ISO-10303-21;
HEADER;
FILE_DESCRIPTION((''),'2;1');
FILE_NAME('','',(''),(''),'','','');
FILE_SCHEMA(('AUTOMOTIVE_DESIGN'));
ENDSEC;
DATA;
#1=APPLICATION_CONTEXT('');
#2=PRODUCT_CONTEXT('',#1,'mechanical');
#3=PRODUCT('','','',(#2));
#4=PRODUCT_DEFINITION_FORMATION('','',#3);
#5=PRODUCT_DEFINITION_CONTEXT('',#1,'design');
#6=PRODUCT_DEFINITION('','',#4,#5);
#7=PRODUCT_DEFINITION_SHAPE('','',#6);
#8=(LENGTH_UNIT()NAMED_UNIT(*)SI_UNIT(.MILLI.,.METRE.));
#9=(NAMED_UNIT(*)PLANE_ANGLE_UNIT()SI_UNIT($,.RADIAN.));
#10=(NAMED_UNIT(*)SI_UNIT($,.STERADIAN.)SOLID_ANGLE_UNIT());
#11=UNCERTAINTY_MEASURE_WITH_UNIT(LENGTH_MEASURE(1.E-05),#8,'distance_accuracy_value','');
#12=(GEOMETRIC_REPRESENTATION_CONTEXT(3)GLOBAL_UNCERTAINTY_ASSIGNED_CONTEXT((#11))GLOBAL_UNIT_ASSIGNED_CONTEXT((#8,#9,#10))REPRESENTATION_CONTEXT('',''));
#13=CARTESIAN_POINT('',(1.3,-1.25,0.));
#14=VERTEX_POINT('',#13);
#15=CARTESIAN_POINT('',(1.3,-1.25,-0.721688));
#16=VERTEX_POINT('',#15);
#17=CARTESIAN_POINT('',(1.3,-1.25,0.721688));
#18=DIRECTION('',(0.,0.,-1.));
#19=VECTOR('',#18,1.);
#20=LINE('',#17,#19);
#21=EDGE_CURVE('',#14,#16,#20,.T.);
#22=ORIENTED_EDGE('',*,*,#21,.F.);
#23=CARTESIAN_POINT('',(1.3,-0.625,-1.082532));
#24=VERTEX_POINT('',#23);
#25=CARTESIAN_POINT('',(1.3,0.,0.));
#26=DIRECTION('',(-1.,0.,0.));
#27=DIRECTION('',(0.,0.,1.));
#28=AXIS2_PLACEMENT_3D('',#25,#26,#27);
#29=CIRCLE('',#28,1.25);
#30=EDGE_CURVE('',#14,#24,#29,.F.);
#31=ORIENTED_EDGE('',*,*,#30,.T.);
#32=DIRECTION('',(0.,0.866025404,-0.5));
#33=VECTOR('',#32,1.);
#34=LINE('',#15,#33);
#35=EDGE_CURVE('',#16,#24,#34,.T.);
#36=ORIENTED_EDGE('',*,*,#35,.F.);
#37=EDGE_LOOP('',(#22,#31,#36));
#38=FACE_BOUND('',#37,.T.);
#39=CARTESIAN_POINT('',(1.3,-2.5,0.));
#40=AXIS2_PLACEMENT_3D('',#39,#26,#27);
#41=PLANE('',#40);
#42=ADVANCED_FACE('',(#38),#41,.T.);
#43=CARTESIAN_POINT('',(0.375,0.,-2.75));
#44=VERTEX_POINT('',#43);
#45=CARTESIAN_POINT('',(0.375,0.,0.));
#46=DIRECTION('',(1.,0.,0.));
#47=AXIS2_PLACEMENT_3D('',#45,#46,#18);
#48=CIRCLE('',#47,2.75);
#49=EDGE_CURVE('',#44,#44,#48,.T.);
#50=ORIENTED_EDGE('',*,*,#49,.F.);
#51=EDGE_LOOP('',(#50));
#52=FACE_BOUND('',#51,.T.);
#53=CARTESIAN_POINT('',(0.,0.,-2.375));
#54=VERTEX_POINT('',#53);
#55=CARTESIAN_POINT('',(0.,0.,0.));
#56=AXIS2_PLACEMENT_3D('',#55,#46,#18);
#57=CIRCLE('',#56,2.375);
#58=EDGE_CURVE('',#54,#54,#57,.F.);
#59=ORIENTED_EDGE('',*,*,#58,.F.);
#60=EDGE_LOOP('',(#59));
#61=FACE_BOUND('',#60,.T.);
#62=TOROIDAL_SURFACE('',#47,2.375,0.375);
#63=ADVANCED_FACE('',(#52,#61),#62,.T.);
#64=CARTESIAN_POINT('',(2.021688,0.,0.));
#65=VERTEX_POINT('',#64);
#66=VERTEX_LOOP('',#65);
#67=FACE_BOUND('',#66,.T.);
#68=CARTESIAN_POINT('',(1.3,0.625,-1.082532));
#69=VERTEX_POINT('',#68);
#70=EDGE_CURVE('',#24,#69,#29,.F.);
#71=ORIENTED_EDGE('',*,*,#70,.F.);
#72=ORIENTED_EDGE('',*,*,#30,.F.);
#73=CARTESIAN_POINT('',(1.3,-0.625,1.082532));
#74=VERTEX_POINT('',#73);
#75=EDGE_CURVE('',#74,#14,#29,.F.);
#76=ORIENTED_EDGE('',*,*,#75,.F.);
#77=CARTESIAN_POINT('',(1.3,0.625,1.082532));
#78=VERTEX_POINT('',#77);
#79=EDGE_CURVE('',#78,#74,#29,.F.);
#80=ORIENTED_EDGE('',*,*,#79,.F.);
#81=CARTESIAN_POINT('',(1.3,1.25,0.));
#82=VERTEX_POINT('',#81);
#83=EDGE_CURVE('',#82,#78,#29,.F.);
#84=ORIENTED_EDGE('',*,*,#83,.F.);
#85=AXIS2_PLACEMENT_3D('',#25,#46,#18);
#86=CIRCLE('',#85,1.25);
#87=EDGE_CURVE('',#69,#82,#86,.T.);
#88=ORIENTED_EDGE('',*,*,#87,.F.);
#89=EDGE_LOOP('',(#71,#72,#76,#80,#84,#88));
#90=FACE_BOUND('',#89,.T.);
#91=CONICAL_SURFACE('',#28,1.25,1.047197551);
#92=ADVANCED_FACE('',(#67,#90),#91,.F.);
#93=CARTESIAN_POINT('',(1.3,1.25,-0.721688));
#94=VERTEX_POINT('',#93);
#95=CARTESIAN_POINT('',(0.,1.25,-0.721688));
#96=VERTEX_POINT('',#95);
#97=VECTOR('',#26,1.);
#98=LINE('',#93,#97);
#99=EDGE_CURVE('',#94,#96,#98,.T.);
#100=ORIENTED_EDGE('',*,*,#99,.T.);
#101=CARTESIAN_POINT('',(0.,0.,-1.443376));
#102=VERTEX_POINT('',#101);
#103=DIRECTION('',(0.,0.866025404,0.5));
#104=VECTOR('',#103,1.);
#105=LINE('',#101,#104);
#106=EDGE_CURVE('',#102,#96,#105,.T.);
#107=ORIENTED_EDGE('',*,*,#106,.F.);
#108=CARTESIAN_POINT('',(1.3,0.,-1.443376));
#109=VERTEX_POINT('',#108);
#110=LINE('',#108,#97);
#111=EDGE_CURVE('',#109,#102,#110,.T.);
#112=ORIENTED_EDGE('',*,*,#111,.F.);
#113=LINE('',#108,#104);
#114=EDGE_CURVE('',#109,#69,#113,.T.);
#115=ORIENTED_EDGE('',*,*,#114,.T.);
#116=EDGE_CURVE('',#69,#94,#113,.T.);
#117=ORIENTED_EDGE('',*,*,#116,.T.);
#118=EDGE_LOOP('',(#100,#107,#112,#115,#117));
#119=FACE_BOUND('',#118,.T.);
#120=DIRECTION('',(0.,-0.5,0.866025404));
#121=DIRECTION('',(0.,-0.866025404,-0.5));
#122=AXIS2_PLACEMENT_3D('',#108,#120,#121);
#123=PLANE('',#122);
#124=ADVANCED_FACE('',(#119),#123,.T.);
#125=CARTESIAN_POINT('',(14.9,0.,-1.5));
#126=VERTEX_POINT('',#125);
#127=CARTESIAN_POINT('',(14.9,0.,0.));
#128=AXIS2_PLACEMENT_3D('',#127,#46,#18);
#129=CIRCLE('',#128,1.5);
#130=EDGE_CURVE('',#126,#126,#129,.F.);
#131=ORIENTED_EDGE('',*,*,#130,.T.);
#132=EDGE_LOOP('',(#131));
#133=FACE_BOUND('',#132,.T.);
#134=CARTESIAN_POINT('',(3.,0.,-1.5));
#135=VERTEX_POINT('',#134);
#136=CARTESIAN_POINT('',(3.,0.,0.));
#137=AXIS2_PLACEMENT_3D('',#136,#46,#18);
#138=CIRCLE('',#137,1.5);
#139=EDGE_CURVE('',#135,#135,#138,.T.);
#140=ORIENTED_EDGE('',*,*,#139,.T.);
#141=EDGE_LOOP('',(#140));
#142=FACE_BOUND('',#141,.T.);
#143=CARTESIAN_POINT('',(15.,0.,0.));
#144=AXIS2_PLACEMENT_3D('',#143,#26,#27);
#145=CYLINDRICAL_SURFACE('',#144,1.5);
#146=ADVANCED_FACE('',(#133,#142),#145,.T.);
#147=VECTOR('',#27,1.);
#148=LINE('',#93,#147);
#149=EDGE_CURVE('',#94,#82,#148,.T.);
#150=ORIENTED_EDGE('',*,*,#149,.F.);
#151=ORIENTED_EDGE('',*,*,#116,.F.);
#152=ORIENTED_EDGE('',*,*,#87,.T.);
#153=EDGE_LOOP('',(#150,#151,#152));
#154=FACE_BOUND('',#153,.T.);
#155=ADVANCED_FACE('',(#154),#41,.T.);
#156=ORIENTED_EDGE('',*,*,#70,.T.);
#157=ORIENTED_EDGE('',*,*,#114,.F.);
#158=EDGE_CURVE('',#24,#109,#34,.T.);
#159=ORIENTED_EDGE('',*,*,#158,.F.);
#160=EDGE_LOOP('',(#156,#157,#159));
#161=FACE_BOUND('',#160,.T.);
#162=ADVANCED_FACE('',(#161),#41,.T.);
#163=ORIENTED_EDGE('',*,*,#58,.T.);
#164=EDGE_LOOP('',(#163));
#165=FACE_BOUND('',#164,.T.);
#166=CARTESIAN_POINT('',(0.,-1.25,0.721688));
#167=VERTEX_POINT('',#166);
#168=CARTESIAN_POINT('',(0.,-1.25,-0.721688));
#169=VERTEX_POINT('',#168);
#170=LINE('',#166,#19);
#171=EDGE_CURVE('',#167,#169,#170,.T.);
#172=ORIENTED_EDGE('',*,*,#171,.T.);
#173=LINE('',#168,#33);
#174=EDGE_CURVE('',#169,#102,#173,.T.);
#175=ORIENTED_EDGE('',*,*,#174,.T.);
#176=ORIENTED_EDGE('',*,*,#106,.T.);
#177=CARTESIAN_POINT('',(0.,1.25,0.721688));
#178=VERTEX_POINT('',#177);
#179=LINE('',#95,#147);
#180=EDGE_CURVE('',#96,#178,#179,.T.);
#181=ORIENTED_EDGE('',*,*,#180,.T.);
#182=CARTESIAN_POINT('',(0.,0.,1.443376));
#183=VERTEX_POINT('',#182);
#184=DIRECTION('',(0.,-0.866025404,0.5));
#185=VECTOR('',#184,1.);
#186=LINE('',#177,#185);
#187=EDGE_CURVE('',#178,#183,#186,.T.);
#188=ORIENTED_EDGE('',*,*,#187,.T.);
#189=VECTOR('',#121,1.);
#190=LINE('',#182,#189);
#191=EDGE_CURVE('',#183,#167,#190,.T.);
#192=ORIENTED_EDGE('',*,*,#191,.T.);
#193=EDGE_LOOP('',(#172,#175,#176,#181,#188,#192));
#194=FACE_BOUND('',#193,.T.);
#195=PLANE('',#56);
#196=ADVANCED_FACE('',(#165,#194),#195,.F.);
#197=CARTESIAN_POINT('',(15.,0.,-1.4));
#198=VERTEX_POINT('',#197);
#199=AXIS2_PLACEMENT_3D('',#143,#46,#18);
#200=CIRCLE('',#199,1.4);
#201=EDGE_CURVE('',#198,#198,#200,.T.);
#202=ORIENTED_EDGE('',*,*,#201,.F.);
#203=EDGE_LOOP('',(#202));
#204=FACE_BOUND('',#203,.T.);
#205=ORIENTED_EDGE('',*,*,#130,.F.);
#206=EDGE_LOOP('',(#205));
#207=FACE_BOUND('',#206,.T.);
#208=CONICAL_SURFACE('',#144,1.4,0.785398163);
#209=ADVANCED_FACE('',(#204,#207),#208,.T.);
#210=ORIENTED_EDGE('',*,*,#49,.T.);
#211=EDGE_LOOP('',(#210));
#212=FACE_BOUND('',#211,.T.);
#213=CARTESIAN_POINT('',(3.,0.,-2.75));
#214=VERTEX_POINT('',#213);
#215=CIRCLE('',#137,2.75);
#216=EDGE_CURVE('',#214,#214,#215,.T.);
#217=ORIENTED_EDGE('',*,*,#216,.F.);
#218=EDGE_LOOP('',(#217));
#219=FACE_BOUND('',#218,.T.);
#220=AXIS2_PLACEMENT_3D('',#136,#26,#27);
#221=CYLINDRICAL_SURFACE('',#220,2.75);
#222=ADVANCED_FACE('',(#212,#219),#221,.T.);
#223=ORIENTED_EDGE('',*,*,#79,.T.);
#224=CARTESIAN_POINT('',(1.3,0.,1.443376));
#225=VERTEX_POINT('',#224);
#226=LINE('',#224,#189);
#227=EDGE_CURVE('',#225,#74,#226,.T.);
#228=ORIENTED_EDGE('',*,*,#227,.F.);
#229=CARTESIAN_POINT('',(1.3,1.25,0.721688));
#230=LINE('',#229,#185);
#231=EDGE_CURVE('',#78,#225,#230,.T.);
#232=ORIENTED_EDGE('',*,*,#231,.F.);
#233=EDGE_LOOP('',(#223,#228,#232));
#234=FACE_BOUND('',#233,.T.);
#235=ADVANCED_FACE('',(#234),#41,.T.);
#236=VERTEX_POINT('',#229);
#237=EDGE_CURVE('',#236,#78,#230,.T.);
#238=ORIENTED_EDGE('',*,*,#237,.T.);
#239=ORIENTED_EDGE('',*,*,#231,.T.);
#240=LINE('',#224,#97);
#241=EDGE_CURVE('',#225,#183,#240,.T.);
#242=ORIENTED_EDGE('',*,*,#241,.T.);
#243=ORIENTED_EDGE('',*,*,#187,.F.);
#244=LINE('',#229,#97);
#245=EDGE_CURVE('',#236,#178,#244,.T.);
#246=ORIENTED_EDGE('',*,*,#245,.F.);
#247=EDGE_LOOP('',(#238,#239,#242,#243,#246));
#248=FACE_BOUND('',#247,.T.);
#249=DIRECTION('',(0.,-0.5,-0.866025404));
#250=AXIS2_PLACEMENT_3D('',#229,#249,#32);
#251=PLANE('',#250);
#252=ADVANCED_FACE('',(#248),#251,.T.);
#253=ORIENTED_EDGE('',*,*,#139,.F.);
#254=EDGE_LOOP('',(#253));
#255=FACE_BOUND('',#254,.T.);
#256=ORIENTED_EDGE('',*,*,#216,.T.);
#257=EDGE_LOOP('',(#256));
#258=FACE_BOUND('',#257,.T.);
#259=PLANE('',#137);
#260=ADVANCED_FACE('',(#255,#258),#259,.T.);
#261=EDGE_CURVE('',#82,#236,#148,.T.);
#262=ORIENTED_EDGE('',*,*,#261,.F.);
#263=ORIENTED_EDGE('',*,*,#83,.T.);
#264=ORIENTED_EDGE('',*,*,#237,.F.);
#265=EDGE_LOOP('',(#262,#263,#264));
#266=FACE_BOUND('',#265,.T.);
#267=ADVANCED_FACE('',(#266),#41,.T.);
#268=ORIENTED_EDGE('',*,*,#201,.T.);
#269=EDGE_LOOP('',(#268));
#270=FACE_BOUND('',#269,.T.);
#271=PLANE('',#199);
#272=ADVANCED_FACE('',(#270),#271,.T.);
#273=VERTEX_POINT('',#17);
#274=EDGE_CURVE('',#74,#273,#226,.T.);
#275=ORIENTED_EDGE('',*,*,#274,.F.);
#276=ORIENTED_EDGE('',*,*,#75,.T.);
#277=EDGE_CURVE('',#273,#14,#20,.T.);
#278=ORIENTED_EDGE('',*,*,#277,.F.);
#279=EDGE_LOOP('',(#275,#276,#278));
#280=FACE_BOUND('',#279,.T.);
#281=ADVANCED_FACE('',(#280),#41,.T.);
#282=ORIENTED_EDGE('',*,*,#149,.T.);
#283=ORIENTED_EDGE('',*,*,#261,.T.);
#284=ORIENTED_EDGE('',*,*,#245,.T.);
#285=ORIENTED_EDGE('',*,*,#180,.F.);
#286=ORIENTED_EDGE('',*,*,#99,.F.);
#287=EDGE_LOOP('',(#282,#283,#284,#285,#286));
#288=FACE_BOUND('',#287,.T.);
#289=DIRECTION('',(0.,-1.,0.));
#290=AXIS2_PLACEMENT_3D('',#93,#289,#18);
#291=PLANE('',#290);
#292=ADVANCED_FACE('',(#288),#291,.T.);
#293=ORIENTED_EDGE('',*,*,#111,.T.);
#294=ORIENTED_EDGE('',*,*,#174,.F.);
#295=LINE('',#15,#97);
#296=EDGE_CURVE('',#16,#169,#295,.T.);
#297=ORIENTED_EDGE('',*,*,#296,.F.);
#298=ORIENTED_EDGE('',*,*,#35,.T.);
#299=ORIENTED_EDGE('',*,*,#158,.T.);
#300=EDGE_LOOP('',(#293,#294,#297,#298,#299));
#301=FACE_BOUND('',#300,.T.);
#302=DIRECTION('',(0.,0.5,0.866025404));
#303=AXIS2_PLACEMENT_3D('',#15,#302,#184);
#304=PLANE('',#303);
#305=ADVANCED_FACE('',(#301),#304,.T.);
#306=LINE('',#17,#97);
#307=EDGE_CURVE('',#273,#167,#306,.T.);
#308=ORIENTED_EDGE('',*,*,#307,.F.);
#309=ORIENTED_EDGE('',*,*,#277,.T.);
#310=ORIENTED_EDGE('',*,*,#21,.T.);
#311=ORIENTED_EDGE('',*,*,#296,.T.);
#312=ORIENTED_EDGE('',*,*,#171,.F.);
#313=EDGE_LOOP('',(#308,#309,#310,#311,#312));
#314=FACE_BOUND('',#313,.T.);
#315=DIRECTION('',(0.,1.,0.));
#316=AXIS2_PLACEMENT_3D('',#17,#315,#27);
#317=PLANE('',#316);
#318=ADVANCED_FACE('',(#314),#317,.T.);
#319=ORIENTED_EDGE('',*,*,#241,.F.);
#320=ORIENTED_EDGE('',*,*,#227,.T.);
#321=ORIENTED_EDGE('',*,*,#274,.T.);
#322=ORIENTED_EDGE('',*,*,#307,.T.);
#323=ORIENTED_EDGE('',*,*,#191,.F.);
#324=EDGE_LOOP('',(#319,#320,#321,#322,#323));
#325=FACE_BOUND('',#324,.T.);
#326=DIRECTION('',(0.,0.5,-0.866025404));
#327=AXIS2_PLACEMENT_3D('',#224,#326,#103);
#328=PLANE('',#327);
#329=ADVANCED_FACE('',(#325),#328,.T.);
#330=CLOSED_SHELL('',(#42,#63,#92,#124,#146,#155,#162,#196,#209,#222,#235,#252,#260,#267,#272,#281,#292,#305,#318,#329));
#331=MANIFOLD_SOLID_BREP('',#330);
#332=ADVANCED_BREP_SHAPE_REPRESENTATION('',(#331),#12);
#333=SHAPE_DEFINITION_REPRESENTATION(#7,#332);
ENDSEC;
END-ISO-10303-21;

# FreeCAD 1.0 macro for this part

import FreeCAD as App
import Part
import Sketcher
Q = App.Units.Quantity


def edges_at(feature, points):
    """Names of the edges that pass closest to the given points."""
    edges = feature.Shape.Edges
    near = lambda p: min(range(len(edges)), key=lambda i: edges[i].distToShape(Part.Vertex(*p))[0])
    return sorted({f"Edge{near(p) + 1}" for p in points})

doc = App.newDocument("Part")
body = doc.addObject("PartDesign::Body", "Body")

# Sketch on YZ plane
sketch1 = body.newObject("Sketcher::SketchObject", "Sketch")
sketch1.AttachmentSupport = (doc.getObject("YZ_Plane"), [""])
sketch1.MapMode = "FlatFace"
sketch1.addGeometry(Part.Circle(App.Vector(0, 0, 0), App.Vector(0, 0, 1), 2.8), False)
sketch1.addConstraint([
    Sketcher.Constraint("Coincident", 0, 3, -1, 1),
    Sketcher.Constraint("Diameter", 0, Q("5.5 mm")),
])
pad1 = body.newObject("PartDesign::Pad", "Pad")
pad1.Profile = sketch1
pad1.Length = 3

# Sketch on YZ plane
sketch2 = body.newObject("Sketcher::SketchObject", "Sketch001")
sketch2.AttachmentSupport = (doc.getObject("YZ_Plane"), [""])
sketch2.MapMode = "FlatFace"
sketch2.AttachmentOffset = App.Placement(App.Vector(0, 0, 3), App.Rotation())
sketch2.addGeometry(Part.Circle(App.Vector(0, 0, 0), App.Vector(0, 0, 1), 1.5), False)
sketch2.addConstraint([
    Sketcher.Constraint("Coincident", 0, 3, -1, 1),
    Sketcher.Constraint("Diameter", 0, Q("3 mm")),
])
pad2 = body.newObject("PartDesign::Pad", "Pad001")
pad2.Profile = sketch2
pad2.Length = 12

# Sketch on YZ plane
sketch3 = body.newObject("Sketcher::SketchObject", "Sketch002")
sketch3.AttachmentSupport = (doc.getObject("YZ_Plane"), [""])
sketch3.MapMode = "FlatFace"
sketch3.addGeometry([
    Part.LineSegment(App.Vector(0, -1.4, 0), App.Vector(1.2, -0.7, 0)),  # 0
    Part.LineSegment(App.Vector(1.2, -0.7, 0), App.Vector(1.2, 0.7, 0)),  # 1
    Part.LineSegment(App.Vector(1.2, 0.7, 0), App.Vector(0, 1.4, 0)),  # 2
    Part.LineSegment(App.Vector(0, 1.4, 0), App.Vector(-1.2, 0.7, 0)),  # 3
    Part.LineSegment(App.Vector(-1.2, 0.7, 0), App.Vector(-1.2, -0.7, 0)),  # 4
    Part.LineSegment(App.Vector(-1.2, -0.7, 0), App.Vector(0, -1.4, 0)),  # 5
], False)
sketch3.addConstraint([
    Sketcher.Constraint("Coincident", 0, 2, 1, 1),
    Sketcher.Constraint("Coincident", 1, 2, 2, 1),
    Sketcher.Constraint("Coincident", 2, 2, 3, 1),
    Sketcher.Constraint("Coincident", 3, 2, 4, 1),
    Sketcher.Constraint("Coincident", 4, 2, 5, 1),
    Sketcher.Constraint("Coincident", 5, 2, 0, 1),
    Sketcher.Constraint("Vertical", 1),
    Sketcher.Constraint("Vertical", 4),
    Sketcher.Constraint("Symmetric", 0, 2, 3, 2, -1, 1),
    Sketcher.Constraint("Symmetric", 2, 2, 5, 2, -1, 1),
    Sketcher.Constraint("PointOnObject", 2, 2, -2),
    Sketcher.Constraint("Parallel", 2, 5),
    Sketcher.Constraint("Horizontal", 1, 2, 3, 2),
    Sketcher.Constraint("Angle", 0, Q("30 deg")),
    Sketcher.Constraint("DistanceX", 3, 2, 1, 2, Q("2.5 mm")),
    Sketcher.Constraint("DistanceY", 1, 1, 1, 2, Q("1.443376 mm")),
])
pocket1 = body.newObject("PartDesign::Pocket", "Pocket")
pocket1.Profile = sketch3
pocket1.Length = 1.3
pocket1.Reversed = True

# Sketch on XY plane
sketch4 = body.newObject("Sketcher::SketchObject", "Sketch003")
sketch4.AttachmentSupport = (doc.getObject("XY_Plane"), [""])
sketch4.MapMode = "FlatFace"
sketch4.addGeometry([
    Part.LineSegment(App.Vector(1.3, -1.2, 0), App.Vector(2, 0, 0)),
    Part.LineSegment(App.Vector(2, 0, 0), App.Vector(1.3, 0, 0)),
    Part.LineSegment(App.Vector(1.3, 0, 0), App.Vector(1.3, -1.2, 0)),
], False)
sketch4.addConstraint([
    Sketcher.Constraint("Coincident", 0, 2, 1, 1),
    Sketcher.Constraint("Coincident", 1, 2, 2, 1),
    Sketcher.Constraint("Coincident", 2, 2, 0, 1),
    Sketcher.Constraint("Horizontal", 1),
    Sketcher.Constraint("Vertical", 2),
    Sketcher.Constraint("PointOnObject", 0, 2, -1),
    Sketcher.Constraint("Angle", 0, Q("60 deg")),
    Sketcher.Constraint("DistanceY", 2, 2, 2, 1, Q("1.25 mm")),
    Sketcher.Constraint("DistanceX", -1, 1, 1, 2, Q("1.3 mm")),
])
groove = body.newObject("PartDesign::Groove", "Groove")
groove.Profile = sketch4
groove.ReferenceAxis = (sketch4, ["H_Axis"])
groove.Angle = 360
doc.recompute()

fillet = body.newObject("PartDesign::Fillet", "Fillet")
fillet.Base = (groove, edges_at(groove, [(0, 0, 2.75)]))
fillet.Radius = 0.375
doc.recompute()

chamfer = body.newObject("PartDesign::Chamfer", "Chamfer")
chamfer.Base = (fillet, edges_at(fillet, [(15, 0, 1.5)]))
chamfer.Size = 0.1

doc.recompute()
